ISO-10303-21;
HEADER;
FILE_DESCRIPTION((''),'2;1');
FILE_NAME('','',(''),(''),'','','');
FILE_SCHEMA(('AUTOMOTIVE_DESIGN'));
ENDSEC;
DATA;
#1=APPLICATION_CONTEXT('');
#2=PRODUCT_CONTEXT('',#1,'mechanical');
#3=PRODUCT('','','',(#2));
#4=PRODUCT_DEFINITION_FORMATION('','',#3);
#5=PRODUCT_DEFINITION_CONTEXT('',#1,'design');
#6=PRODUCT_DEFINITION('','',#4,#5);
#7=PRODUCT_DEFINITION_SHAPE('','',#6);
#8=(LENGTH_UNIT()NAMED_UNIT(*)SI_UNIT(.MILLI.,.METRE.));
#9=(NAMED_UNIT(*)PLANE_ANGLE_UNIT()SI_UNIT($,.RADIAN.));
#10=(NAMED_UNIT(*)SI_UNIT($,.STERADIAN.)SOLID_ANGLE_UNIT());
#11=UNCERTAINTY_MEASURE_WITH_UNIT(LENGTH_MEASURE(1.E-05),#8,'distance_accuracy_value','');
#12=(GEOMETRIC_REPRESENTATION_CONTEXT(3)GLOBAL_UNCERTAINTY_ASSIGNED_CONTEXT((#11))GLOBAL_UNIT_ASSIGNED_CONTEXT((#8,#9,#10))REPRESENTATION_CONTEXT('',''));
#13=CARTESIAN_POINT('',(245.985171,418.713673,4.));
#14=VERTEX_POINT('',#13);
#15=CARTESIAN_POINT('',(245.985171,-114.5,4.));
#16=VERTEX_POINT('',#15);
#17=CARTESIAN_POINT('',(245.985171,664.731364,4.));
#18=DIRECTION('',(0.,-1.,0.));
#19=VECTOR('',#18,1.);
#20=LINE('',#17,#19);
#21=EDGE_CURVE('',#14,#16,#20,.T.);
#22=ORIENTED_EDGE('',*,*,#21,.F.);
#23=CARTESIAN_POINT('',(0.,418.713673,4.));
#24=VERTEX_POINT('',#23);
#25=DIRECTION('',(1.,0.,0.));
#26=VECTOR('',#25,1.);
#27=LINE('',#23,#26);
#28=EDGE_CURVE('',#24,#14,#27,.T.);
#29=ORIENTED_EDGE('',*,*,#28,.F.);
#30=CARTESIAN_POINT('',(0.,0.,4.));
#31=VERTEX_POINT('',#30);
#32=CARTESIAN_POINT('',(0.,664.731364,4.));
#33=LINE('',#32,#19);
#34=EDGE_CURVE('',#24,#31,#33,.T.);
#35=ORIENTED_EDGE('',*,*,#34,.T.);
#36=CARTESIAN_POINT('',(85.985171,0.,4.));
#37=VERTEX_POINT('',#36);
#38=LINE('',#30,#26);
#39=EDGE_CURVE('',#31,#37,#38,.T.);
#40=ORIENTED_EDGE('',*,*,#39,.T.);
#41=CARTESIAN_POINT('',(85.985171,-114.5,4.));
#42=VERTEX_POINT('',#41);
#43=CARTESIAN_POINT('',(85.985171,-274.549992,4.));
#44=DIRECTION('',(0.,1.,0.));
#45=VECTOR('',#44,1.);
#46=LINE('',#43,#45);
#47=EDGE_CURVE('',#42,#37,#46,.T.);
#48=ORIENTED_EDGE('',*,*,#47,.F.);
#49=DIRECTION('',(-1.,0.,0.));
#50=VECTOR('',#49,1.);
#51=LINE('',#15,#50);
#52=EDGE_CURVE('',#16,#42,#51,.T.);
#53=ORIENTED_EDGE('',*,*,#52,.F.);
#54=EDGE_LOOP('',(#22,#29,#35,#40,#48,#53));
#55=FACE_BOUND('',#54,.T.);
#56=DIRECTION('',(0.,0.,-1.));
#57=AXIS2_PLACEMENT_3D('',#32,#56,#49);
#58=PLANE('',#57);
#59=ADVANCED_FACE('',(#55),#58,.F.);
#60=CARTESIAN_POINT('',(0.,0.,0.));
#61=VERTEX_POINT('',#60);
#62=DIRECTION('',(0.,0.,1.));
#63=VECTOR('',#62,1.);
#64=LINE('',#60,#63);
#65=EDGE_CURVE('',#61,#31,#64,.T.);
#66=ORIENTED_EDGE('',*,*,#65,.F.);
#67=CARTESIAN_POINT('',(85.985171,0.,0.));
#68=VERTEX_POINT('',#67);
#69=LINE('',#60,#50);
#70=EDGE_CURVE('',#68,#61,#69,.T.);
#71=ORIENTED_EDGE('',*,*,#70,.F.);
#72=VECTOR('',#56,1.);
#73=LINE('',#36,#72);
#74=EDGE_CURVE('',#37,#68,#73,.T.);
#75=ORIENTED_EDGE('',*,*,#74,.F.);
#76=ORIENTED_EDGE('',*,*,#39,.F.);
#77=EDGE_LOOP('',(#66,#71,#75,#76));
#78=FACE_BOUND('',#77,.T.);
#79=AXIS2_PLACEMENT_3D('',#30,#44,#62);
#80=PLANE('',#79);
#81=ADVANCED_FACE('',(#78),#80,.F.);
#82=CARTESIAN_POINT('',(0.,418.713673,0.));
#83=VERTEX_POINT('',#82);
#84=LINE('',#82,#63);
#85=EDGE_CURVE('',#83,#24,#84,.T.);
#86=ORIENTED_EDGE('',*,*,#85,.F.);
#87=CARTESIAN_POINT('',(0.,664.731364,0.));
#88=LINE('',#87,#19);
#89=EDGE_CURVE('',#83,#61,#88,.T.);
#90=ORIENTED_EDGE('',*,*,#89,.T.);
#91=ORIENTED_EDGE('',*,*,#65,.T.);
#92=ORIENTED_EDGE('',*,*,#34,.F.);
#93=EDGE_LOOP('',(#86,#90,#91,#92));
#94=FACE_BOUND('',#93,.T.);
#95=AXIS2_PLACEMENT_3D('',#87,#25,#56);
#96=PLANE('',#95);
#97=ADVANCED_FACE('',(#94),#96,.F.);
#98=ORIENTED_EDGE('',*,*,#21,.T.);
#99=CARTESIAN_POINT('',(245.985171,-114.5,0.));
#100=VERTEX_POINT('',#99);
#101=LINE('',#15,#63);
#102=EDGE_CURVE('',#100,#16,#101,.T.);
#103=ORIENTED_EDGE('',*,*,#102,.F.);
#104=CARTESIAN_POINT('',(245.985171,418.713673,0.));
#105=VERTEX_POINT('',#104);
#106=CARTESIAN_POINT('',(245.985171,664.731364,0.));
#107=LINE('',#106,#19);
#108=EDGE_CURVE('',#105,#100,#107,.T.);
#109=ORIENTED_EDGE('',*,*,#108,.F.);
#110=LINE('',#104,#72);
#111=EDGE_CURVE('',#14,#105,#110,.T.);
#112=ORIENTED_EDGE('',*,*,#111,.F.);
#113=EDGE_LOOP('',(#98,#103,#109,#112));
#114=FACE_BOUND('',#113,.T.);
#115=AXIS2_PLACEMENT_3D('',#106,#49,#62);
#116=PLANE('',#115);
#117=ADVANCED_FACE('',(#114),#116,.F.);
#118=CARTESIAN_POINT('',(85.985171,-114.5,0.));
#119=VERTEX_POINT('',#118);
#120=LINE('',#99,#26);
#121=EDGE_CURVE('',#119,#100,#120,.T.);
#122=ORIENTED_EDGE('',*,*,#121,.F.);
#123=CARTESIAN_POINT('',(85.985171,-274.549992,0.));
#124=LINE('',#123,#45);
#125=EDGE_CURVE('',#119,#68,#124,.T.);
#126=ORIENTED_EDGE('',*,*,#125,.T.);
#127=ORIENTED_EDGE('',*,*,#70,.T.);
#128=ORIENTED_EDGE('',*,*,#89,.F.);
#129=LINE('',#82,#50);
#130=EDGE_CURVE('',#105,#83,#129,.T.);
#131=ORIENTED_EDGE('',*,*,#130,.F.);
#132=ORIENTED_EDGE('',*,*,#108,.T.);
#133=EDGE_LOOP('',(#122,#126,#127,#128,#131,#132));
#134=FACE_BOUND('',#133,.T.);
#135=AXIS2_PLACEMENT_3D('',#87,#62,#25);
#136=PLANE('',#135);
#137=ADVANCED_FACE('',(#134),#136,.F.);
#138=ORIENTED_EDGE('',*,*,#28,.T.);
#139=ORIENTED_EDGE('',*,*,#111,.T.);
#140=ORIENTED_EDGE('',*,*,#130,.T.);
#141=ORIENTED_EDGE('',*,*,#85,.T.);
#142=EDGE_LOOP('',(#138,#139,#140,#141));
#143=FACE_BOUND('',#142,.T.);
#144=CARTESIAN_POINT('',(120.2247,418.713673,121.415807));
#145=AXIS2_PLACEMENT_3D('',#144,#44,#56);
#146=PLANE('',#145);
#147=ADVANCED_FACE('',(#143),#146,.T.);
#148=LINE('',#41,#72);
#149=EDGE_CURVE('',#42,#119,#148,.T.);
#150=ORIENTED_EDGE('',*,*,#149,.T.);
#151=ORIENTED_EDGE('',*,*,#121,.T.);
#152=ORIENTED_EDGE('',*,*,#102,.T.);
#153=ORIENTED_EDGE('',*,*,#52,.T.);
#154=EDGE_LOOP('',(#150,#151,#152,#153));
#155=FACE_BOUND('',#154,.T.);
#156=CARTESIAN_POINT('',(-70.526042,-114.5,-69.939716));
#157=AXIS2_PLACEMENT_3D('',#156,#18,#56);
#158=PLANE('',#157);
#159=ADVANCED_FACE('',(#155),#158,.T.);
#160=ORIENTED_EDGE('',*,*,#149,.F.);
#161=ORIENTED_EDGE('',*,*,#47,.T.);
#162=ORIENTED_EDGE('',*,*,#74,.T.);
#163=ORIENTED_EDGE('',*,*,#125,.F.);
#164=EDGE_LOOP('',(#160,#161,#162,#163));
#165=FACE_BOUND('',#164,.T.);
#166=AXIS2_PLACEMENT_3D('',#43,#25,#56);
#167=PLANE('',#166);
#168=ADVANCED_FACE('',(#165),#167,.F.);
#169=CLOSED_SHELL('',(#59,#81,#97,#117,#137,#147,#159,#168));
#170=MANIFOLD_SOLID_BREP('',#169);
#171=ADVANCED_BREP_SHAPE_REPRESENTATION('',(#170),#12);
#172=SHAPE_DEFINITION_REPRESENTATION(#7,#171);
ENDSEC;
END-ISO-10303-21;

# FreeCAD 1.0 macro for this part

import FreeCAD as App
import Part
import Sketcher


def add_polygon(sketch, points):
    """Adds a closed chain of lines whose ends are joined by coincident constraints."""
    first, n = sketch.GeometryCount, len(points)
    for a, b in zip(points, points[1:] + points[:1]):
        sketch.addGeometry(Part.LineSegment(App.Vector(*a, 0), App.Vector(*b, 0)), False)
    for i in range(n):
        sketch.addConstraint(Sketcher.Constraint("Coincident", first + i, 2, first + (i + 1) % n, 1))

doc = App.newDocument("Part")
body = doc.addObject("PartDesign::Body", "Body")

# Sketch on XZ plane
sketch1 = doc.addObject("Sketcher::SketchObject", "Sketch")
body.addObject(sketch1)
sketch1.AttachmentSupport = (doc.XZ_Plane, [""])
sketch1.MapMode = "FlatFace"
add_polygon(sketch1, [(0, 0), (0, 4), (246, 4), (246, 0)])  # lines 0-3
sketch1.addConstraint([
    Sketcher.Constraint("Vertical", 0),
    Sketcher.Constraint("Horizontal", 1),
    Sketcher.Constraint("Vertical", 2),
    Sketcher.Constraint("Horizontal", 3),
    Sketcher.Constraint("Coincident", 3, 2, -1, 1),
    Sketcher.Constraint("DistanceY", 0, 1, 0, 2, 4.0),
    Sketcher.Constraint("DistanceX", 1, 1, 1, 2, 245.985171),
])
pad1 = doc.addObject("PartDesign::Pad", "Pad")
body.addObject(pad1)
pad1.Profile = sketch1
pad1.Length = 418.713673
pad1.Reversed = True

# Sketch on XZ plane
sketch2 = doc.addObject("Sketcher::SketchObject", "Sketch001")
body.addObject(sketch2)
sketch2.AttachmentSupport = (doc.XZ_Plane, [""])
sketch2.MapMode = "FlatFace"
add_polygon(sketch2, [(86, 4), (86, 0), (246, 0), (246, 4)])  # lines 0-3
sketch2.addConstraint([
    Sketcher.Constraint("Vertical", 0),
    Sketcher.Constraint("Horizontal", 1),
    Sketcher.Constraint("Vertical", 2),
    Sketcher.Constraint("Horizontal", 3),
    Sketcher.Constraint("PointOnObject", 0, 2, -1),
    Sketcher.Constraint("DistanceX", 1, 1, 1, 2, 160.0),
    Sketcher.Constraint("DistanceY", 0, 2, 0, 1, 4.0),
    Sketcher.Constraint("DistanceX", -1, 1, 0, 2, 85.985171),
])
pad2 = doc.addObject("PartDesign::Pad", "Pad001")
body.addObject(pad2)
pad2.Profile = sketch2
pad2.Length = 114.5

doc.recompute()
